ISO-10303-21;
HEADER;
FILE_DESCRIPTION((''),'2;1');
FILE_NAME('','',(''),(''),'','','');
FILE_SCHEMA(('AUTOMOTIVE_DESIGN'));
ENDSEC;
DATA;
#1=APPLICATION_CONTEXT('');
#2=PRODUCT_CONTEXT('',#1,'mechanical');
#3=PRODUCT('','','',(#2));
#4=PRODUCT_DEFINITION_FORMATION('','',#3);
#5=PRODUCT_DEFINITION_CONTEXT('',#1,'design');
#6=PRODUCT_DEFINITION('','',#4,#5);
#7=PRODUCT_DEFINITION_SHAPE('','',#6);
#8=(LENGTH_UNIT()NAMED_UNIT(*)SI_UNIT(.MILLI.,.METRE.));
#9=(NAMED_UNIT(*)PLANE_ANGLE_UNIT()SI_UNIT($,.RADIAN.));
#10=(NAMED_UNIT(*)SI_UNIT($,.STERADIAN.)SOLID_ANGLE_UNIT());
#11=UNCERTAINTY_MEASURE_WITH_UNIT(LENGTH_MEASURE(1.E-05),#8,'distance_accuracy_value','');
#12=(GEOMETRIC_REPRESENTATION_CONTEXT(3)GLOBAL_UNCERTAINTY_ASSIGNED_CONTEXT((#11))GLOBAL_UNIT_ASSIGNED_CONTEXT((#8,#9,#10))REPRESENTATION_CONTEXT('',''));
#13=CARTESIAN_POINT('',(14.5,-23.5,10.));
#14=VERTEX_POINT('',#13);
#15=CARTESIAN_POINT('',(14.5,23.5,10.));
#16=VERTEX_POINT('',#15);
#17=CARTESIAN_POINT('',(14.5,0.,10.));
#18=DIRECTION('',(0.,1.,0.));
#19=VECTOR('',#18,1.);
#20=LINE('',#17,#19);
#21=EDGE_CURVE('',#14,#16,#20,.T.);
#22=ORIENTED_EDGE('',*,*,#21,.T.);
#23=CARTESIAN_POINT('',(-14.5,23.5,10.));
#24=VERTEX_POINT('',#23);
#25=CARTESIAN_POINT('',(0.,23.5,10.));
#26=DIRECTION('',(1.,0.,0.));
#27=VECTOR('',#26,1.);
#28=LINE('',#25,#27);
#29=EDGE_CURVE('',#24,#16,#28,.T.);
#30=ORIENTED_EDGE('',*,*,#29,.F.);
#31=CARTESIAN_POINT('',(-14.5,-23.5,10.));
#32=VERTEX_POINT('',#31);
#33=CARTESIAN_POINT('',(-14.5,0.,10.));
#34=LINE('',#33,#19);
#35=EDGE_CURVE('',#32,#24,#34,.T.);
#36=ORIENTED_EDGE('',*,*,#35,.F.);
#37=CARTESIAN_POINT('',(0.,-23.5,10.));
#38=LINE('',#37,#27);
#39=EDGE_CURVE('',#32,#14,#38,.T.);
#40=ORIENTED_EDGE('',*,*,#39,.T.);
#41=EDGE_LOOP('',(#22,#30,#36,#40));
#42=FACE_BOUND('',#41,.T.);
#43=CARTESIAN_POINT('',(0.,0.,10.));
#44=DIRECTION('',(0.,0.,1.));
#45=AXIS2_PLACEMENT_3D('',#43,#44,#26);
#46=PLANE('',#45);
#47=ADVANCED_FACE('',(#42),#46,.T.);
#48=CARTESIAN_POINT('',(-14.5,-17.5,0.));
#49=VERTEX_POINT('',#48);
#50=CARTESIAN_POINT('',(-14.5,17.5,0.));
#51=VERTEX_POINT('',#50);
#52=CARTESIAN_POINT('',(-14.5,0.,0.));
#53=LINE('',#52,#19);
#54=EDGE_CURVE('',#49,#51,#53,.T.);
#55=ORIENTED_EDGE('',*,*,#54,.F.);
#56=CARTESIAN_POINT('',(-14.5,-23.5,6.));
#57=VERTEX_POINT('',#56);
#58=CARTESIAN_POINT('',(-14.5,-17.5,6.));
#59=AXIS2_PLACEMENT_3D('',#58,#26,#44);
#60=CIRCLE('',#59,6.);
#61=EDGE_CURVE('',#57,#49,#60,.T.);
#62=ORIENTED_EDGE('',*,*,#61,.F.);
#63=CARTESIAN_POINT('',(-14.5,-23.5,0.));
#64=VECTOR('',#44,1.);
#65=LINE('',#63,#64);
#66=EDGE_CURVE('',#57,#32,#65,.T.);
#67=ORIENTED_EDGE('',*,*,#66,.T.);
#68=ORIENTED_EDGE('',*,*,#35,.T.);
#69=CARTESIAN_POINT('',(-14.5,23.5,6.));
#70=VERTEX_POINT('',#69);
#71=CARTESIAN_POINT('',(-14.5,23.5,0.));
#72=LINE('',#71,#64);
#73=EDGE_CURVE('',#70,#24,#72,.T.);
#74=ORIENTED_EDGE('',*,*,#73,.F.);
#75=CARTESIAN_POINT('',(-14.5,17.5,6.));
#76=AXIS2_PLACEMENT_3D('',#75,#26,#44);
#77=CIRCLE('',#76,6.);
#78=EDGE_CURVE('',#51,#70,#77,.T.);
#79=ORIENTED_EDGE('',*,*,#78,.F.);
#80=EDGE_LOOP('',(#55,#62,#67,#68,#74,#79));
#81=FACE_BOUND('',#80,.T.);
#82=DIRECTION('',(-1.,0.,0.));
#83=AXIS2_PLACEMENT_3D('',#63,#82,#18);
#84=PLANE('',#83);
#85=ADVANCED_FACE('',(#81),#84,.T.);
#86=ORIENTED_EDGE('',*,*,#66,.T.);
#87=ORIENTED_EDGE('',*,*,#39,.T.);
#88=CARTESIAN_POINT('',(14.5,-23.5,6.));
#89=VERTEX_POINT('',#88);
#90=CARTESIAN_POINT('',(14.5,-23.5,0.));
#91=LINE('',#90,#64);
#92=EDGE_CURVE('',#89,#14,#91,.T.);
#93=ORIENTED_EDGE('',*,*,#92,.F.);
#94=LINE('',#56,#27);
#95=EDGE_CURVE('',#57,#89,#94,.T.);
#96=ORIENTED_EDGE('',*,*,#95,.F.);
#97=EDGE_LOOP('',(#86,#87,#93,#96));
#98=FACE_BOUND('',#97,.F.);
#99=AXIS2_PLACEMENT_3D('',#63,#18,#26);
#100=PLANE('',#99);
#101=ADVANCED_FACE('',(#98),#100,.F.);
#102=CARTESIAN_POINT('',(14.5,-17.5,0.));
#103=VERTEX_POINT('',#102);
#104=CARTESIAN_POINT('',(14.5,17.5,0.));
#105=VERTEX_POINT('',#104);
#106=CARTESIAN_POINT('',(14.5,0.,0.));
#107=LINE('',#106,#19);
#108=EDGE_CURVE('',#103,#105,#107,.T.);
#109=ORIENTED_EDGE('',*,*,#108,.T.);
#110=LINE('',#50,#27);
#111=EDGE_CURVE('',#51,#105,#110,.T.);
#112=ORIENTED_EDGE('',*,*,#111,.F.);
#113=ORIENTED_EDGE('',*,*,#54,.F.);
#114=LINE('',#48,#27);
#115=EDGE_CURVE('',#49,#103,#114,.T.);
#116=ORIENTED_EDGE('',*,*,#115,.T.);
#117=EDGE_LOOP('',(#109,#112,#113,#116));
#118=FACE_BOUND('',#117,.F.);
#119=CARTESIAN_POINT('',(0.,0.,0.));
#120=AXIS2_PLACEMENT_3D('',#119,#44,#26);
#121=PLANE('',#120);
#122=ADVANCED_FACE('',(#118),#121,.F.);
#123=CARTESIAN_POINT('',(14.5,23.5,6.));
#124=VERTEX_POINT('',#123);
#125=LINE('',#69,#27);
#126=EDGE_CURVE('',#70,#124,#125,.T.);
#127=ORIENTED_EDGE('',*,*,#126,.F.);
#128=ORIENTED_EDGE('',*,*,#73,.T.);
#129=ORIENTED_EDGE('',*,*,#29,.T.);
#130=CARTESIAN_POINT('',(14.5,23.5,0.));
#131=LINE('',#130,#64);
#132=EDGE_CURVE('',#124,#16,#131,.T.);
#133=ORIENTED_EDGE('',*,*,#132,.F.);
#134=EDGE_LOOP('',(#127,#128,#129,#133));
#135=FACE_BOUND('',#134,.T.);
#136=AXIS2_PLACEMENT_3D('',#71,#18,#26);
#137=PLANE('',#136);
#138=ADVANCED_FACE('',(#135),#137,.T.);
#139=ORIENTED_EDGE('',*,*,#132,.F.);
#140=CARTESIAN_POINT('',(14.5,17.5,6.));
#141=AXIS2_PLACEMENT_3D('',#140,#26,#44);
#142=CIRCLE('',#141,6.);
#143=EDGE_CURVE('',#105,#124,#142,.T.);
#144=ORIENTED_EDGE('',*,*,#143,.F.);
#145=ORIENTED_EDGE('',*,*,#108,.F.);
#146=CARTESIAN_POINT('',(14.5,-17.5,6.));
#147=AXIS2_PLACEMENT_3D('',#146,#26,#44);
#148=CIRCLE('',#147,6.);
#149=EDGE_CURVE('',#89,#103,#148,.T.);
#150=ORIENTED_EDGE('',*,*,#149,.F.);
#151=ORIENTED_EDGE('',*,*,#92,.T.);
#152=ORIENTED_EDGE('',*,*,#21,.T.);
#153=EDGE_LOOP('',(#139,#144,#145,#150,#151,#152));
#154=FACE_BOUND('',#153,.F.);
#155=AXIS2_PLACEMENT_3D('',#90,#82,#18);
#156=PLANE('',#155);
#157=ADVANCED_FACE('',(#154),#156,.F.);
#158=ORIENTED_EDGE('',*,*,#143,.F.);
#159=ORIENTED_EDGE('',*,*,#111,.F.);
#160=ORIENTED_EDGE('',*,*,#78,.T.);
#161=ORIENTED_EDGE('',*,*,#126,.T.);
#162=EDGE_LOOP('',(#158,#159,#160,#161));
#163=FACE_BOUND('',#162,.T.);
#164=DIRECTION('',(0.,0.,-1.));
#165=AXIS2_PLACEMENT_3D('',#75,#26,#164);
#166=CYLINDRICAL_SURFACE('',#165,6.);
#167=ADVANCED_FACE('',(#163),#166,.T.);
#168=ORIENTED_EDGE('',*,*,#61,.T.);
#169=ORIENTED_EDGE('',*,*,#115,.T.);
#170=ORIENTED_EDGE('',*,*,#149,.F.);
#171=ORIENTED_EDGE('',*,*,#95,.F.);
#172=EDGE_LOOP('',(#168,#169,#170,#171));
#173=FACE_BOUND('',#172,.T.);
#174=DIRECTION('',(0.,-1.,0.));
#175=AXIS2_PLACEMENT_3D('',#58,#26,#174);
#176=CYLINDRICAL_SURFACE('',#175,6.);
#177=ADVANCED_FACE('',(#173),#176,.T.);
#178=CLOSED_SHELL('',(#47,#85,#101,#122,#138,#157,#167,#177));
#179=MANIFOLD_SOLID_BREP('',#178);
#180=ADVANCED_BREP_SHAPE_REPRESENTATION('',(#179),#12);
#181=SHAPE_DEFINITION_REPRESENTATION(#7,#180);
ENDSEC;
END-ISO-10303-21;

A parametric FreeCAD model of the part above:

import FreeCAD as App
import Part
import Sketcher
Q = App.Units.Quantity


def edges_at(feature, points):
    """Names of the edges that pass closest to the given points."""
    edges = feature.Shape.Edges
    near = lambda p: min(range(len(edges)), key=lambda i: edges[i].distToShape(Part.Vertex(*p))[0])
    return sorted({f"Edge{near(p) + 1}" for p in points})


def add_polygon(sketch, points):
    """Adds a closed chain of lines whose ends are joined by coincident constraints."""
    first, n = sketch.GeometryCount, len(points)
    for a, b in zip(points, points[1:] + points[:1]):
        sketch.addGeometry(Part.LineSegment(App.Vector(*a, 0), App.Vector(*b, 0)), False)
    for i in range(n):
        sketch.addConstraint(Sketcher.Constraint("Coincident", first + i, 2, first + (i + 1) % n, 1))

doc = App.newDocument("Part")
params = doc.addObject("Spreadsheet::Sheet", "Params")
for row, (alias, value) in enumerate([
    ("sketch1_width", "29 mm"),
    ("sketch1_height", "47 mm"),
    ("pad1_length", "10 mm"),
    ("fillet_radius", "6 mm"),
    ("fillet2_radius", "6 mm"),
], start=1):
    params.set(f"A{row}", alias)
    params.set(f"B{row}", "=" + value)
    params.setAlias(f"B{row}", alias)

body = doc.addObject("PartDesign::Body", "Body")

sketch1 = body.newObject("Sketcher::SketchObject", "Sketch")
sketch1.AttachmentSupport = (doc.getObject("XY_Plane"), [""])
sketch1.MapMode = "FlatFace"
add_polygon(sketch1, [(-14.5, 23.5), (-14.5, -23.5), (14.5, -23.5), (14.5, 23.5)])
sketch1.addConstraint([
    Sketcher.Constraint("Vertical", 0),
    Sketcher.Constraint("Horizontal", 1),
    Sketcher.Constraint("Vertical", 2),
    Sketcher.Constraint("Horizontal", 3),
    Sketcher.Constraint("Symmetric", 0, 2, 2, 2, -1, 1),
    Sketcher.Constraint("DistanceX", 1, 1, 1, 2, Q("29 mm")),
    Sketcher.Constraint("DistanceY", 0, 2, 0, 1, Q("47 mm")),
])
sketch1.setExpression("Constraints[9]", "Params.sketch1_width")
sketch1.setExpression("Constraints[10]", "Params.sketch1_height")
pad1 = body.newObject("PartDesign::Pad", "Pad")
pad1.Profile = sketch1
pad1.setExpression("Length", "Params.pad1_length")
doc.recompute()

fillet = body.newObject("PartDesign::Fillet", "Fillet")
fillet.Base = (pad1, edges_at(pad1, [(0, -23.5, 0)]))
fillet.setExpression("Radius", "Params.fillet_radius")
doc.recompute()

fillet2 = body.newObject("PartDesign::Fillet", "Fillet001")
fillet2.Base = (fillet, edges_at(fillet, [(0, 23.5, 0)]))
fillet2.setExpression("Radius", "Params.fillet2_radius")

doc.recompute()
